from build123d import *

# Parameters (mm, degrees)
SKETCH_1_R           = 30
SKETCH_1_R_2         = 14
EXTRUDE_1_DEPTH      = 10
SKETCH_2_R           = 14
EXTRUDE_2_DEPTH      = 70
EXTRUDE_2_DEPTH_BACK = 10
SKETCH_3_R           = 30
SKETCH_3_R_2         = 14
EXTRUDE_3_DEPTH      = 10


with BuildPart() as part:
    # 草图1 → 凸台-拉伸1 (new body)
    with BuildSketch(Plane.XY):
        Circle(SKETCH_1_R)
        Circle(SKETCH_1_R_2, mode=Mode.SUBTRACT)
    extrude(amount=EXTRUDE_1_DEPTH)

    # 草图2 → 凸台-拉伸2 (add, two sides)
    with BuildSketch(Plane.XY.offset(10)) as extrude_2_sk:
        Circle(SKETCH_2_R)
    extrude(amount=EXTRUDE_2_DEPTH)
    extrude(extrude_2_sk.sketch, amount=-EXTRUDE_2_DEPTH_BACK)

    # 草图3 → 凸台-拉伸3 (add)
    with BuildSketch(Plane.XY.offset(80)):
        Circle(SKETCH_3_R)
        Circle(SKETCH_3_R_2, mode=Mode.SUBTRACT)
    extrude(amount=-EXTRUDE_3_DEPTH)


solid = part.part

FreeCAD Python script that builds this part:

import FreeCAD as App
import Part
import Sketcher
Q = App.Units.Quantity

doc = App.newDocument("Part")
body = doc.addObject("PartDesign::Body", "Body")

sketch1 = doc.addObject("Sketcher::SketchObject", "Sketch")
body.addObject(sketch1)
sketch1.AttachmentSupport = (doc.XY_Plane, [""])
sketch1.MapMode = "FlatFace"
sketch1.addGeometry([
    Part.Circle(App.Vector(0, 0, 0), App.Vector(0, 0, 1), 30),
    Part.Circle(App.Vector(0, 0, 0), App.Vector(0, 0, 1), 14),
], False)
sketch1.addConstraint([
    Sketcher.Constraint("Coincident", 0, 3, -1, 1),
    Sketcher.Constraint("Coincident", 1, 3, -1, 1),
    Sketcher.Constraint("Diameter", 0, Q("60 mm")),
    Sketcher.Constraint("Diameter", 1, Q("28 mm")),
])
pad1 = doc.addObject("PartDesign::Pad", "Pad")
body.addObject(pad1)
pad1.Profile = sketch1
pad1.Length = 10

sketch2 = doc.addObject("Sketcher::SketchObject", "Sketch001")
body.addObject(sketch2)
sketch2.AttachmentSupport = (doc.XY_Plane, [""])
sketch2.MapMode = "FlatFace"
sketch2.AttachmentOffset = App.Placement(App.Vector(0, 0, 10), App.Rotation())
sketch2.addGeometry(Part.Circle(App.Vector(0, 0, 0), App.Vector(0, 0, 1), 14), False)
sketch2.addConstraint([
    Sketcher.Constraint("Coincident", 0, 3, -1, 1),
    Sketcher.Constraint("Diameter", 0, Q("28 mm")),
])
pad2 = doc.addObject("PartDesign::Pad", "Pad001")
body.addObject(pad2)
pad2.Profile = sketch2
pad2.Type = "TwoLengths"
pad2.Length = 70
pad2.Length2 = 10

sketch3 = doc.addObject("Sketcher::SketchObject", "Sketch002")
body.addObject(sketch3)
sketch3.AttachmentSupport = (doc.XY_Plane, [""])
sketch3.MapMode = "FlatFace"
sketch3.AttachmentOffset = App.Placement(App.Vector(0, 0, 80), App.Rotation())
sketch3.addGeometry([
    Part.Circle(App.Vector(0, 0, 0), App.Vector(0, 0, 1), 30),
    Part.Circle(App.Vector(0, 0, 0), App.Vector(0, 0, 1), 14),
], False)
sketch3.addConstraint([
    Sketcher.Constraint("Coincident", 0, 3, -1, 1),
    Sketcher.Constraint("Coincident", 1, 3, -1, 1),
    Sketcher.Constraint("Diameter", 0, Q("60 mm")),
    Sketcher.Constraint("Diameter", 1, Q("28 mm")),
])
pad3 = doc.addObject("PartDesign::Pad", "Pad002")
body.addObject(pad3)
pad3.Profile = sketch3
pad3.Length = 10
pad3.Reversed = True

doc.recompute()
